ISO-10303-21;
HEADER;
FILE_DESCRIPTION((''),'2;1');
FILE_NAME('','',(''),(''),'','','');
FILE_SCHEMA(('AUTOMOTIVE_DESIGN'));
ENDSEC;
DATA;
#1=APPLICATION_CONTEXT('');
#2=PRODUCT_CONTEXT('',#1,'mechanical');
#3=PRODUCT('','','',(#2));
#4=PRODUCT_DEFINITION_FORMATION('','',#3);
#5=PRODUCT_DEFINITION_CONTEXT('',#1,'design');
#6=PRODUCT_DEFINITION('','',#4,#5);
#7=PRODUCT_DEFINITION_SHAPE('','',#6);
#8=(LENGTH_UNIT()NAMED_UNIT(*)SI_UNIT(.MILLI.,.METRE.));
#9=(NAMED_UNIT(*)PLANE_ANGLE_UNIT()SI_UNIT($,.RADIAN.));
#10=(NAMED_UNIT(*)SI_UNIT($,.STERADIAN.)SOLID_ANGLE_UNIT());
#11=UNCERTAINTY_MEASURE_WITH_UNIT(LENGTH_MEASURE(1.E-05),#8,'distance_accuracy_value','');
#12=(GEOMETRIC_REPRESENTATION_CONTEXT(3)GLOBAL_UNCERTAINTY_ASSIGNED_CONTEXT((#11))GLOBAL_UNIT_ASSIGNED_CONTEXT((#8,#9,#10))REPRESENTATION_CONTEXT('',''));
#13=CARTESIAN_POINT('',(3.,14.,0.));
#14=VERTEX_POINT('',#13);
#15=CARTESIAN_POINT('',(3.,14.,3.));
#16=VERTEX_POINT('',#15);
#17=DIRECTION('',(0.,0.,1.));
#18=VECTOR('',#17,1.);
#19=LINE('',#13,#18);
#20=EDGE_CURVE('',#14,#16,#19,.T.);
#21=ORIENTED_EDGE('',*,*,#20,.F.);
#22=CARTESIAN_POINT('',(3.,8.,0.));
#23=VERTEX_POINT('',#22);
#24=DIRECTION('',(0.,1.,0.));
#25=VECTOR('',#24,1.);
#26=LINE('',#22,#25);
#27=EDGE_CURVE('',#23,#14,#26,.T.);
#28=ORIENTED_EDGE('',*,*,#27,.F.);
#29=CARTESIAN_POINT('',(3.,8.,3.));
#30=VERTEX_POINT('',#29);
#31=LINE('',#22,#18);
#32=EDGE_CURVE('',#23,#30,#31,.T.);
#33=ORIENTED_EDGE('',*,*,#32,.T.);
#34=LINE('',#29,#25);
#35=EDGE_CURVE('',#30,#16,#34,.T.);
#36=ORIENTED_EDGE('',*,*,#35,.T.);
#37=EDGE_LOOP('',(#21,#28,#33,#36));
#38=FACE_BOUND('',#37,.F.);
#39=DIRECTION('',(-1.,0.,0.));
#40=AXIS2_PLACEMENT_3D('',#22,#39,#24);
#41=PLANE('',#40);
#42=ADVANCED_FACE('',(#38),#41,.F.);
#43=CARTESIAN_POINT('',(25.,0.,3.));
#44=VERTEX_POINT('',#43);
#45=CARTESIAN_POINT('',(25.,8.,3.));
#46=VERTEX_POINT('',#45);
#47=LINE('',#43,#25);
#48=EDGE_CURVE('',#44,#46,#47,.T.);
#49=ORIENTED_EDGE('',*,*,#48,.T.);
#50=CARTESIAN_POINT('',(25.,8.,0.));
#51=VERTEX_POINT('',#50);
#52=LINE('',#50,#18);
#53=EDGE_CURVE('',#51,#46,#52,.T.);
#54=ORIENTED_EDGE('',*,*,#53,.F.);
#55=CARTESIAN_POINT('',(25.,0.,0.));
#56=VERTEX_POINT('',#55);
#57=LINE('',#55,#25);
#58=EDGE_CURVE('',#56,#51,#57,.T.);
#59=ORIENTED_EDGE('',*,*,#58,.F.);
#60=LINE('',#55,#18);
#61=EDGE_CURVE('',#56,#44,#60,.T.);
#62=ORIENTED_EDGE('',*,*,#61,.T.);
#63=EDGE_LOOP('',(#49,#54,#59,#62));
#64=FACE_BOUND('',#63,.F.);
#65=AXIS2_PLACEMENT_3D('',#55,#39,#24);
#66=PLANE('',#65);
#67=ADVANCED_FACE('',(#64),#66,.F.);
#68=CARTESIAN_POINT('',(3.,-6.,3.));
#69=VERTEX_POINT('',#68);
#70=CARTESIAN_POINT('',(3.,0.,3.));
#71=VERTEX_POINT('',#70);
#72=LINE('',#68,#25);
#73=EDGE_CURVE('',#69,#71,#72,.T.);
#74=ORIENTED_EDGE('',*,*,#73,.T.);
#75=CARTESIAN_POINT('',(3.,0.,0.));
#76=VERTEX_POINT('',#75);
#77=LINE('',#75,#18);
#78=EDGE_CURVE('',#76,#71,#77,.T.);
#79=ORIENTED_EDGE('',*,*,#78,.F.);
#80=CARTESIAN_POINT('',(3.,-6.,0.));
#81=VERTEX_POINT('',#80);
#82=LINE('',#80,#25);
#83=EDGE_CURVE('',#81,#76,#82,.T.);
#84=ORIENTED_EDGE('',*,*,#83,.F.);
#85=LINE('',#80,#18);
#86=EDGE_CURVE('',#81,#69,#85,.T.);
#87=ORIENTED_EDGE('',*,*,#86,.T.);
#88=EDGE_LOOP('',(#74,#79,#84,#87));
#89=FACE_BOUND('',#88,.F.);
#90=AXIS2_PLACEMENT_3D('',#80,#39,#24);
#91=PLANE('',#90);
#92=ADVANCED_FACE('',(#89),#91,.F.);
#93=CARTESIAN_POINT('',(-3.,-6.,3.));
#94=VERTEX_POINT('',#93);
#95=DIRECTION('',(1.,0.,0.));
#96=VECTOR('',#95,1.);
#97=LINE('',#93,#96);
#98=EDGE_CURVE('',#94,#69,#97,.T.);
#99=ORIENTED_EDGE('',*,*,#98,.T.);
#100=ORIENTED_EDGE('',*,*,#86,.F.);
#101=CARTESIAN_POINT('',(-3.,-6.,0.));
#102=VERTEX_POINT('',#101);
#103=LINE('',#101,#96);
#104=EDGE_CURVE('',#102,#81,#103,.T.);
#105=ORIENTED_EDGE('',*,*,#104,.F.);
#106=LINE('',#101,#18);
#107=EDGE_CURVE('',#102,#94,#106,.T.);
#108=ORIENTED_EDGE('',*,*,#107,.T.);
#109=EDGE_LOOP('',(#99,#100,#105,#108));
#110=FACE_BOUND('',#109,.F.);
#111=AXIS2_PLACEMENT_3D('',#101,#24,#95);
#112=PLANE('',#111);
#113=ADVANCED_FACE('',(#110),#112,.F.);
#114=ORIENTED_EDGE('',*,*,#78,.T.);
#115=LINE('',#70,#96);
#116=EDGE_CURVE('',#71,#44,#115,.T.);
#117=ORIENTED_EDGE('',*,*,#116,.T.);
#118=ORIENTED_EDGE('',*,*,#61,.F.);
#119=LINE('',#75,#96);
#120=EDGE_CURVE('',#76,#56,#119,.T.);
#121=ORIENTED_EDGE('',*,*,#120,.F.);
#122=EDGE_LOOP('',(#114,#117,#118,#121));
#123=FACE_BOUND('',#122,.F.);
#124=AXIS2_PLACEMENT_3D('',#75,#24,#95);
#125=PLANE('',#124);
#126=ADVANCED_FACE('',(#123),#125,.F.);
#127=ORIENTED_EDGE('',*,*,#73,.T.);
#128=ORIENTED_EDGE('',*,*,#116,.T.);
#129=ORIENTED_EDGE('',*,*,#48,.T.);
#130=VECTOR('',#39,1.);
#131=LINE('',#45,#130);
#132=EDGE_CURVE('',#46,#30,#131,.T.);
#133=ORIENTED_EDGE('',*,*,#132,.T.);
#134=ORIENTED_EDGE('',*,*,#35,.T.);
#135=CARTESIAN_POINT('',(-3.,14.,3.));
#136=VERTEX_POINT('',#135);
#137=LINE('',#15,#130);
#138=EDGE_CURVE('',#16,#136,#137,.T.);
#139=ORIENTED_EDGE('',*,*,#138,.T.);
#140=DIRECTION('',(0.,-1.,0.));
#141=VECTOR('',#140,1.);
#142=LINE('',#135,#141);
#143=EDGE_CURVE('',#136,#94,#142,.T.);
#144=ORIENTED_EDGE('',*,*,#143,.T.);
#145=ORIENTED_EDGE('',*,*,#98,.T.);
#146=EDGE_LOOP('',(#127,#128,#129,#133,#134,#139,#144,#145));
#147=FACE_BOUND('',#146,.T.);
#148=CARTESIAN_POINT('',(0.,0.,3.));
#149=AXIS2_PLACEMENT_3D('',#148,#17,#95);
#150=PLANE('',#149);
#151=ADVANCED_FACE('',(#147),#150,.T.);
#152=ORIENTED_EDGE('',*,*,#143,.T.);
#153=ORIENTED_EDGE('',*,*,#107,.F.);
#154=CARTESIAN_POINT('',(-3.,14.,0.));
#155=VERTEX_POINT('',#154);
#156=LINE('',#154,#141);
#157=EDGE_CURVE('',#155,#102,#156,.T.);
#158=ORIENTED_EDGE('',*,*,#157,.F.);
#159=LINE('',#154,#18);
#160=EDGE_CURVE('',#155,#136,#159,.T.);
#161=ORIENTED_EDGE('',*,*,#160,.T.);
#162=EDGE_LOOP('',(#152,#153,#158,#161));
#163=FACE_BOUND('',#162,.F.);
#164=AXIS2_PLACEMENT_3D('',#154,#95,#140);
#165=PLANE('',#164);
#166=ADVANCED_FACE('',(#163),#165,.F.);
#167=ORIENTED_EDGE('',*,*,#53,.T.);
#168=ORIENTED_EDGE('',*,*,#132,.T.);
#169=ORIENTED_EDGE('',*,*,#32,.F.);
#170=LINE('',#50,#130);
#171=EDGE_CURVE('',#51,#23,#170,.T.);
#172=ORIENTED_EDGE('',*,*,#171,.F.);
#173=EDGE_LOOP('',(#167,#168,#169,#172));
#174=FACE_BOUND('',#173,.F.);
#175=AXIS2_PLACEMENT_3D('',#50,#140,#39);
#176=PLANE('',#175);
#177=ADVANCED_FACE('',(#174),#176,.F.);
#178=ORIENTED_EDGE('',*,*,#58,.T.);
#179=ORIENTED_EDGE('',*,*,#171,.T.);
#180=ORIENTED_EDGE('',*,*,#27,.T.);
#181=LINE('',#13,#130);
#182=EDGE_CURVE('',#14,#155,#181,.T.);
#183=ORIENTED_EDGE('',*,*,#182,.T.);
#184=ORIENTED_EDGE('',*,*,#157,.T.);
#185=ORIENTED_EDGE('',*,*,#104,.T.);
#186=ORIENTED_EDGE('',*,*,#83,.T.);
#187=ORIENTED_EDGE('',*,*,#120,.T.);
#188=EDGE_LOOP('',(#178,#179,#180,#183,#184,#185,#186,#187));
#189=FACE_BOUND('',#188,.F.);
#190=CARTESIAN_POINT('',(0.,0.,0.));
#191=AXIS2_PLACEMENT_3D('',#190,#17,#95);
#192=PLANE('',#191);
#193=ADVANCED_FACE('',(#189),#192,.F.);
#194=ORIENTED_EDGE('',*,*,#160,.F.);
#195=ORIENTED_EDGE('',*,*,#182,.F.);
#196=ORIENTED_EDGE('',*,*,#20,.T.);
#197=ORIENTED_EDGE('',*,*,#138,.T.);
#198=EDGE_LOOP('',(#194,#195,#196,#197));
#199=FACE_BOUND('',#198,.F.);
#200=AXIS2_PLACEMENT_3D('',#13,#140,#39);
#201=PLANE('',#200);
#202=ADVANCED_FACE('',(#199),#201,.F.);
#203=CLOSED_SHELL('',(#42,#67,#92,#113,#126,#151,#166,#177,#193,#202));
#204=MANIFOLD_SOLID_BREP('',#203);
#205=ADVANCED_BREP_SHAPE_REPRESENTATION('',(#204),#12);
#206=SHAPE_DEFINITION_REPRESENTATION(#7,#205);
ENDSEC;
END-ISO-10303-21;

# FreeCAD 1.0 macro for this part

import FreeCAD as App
import Part
import Sketcher

V = App.Vector


def add_polygon(sketch, points):
    """Adds a closed chain of lines whose ends are joined by coincident constraints."""
    first, n = sketch.GeometryCount, len(points)
    for a, b in zip(points, points[1:] + points[:1]):
        sketch.addGeometry(Part.LineSegment(App.Vector(*a, 0), App.Vector(*b, 0)), False)
    for i in range(n):
        sketch.addConstraint(Sketcher.Constraint("Coincident", first + i, 2, first + (i + 1) % n, 1))

doc = App.newDocument("Part")
body = doc.addObject("PartDesign::Body", "Body")

# Sketch on XY plane
sketch1 = doc.addObject("Sketcher::SketchObject", "Sketch")
body.addObject(sketch1)
sketch1.AttachmentSupport = (doc.XY_Plane, [""])
sketch1.MapMode = "FlatFace"
add_polygon(sketch1, [(3, 0), (25, 0), (25, 8), (3, 8), (3, 14), (-3, 14), (-3, -6), (3, -6)])  # lines 0-7
sketch1.addConstraint(Sketcher.Constraint("Horizontal", 0))
sketch1.addConstraint(Sketcher.Constraint("Vertical", 1))
sketch1.addConstraint(Sketcher.Constraint("Horizontal", 2))
sketch1.addConstraint(Sketcher.Constraint("Vertical", 3))
sketch1.addConstraint(Sketcher.Constraint("Horizontal", 4))
sketch1.addConstraint(Sketcher.Constraint("Vertical", 5))
sketch1.addConstraint(Sketcher.Constraint("Horizontal", 6))
sketch1.addConstraint(Sketcher.Constraint("Vertical", 7))
sketch1.addConstraint(Sketcher.Constraint("PointOnObject", 0, 2, -1))
sketch1.addConstraint(Sketcher.Constraint("Vertical", 3, 2, 6, 2))
sketch1.addConstraint(Sketcher.Constraint("Equal", 6, 3))
sketch1.addConstraint(Sketcher.Constraint("Equal", 3, 7))
sketch1.addConstraint(Sketcher.Constraint("DistanceX", 4, 2, 4, 1, 6.0))
sketch1.addConstraint(Sketcher.Constraint("DistanceY", 1, 1, 1, 2, 8.0))
sketch1.addConstraint(Sketcher.Constraint("DistanceX", -1, 1, 0, 2, 25.0))
sketch1.addConstraint(Sketcher.Constraint("DistanceX", 0, 1, 0, 2, 22.0))
pad1 = doc.addObject("PartDesign::Pad", "Pad")
body.addObject(pad1)
pad1.Profile = sketch1
pad1.Length = 3

doc.recompute()
